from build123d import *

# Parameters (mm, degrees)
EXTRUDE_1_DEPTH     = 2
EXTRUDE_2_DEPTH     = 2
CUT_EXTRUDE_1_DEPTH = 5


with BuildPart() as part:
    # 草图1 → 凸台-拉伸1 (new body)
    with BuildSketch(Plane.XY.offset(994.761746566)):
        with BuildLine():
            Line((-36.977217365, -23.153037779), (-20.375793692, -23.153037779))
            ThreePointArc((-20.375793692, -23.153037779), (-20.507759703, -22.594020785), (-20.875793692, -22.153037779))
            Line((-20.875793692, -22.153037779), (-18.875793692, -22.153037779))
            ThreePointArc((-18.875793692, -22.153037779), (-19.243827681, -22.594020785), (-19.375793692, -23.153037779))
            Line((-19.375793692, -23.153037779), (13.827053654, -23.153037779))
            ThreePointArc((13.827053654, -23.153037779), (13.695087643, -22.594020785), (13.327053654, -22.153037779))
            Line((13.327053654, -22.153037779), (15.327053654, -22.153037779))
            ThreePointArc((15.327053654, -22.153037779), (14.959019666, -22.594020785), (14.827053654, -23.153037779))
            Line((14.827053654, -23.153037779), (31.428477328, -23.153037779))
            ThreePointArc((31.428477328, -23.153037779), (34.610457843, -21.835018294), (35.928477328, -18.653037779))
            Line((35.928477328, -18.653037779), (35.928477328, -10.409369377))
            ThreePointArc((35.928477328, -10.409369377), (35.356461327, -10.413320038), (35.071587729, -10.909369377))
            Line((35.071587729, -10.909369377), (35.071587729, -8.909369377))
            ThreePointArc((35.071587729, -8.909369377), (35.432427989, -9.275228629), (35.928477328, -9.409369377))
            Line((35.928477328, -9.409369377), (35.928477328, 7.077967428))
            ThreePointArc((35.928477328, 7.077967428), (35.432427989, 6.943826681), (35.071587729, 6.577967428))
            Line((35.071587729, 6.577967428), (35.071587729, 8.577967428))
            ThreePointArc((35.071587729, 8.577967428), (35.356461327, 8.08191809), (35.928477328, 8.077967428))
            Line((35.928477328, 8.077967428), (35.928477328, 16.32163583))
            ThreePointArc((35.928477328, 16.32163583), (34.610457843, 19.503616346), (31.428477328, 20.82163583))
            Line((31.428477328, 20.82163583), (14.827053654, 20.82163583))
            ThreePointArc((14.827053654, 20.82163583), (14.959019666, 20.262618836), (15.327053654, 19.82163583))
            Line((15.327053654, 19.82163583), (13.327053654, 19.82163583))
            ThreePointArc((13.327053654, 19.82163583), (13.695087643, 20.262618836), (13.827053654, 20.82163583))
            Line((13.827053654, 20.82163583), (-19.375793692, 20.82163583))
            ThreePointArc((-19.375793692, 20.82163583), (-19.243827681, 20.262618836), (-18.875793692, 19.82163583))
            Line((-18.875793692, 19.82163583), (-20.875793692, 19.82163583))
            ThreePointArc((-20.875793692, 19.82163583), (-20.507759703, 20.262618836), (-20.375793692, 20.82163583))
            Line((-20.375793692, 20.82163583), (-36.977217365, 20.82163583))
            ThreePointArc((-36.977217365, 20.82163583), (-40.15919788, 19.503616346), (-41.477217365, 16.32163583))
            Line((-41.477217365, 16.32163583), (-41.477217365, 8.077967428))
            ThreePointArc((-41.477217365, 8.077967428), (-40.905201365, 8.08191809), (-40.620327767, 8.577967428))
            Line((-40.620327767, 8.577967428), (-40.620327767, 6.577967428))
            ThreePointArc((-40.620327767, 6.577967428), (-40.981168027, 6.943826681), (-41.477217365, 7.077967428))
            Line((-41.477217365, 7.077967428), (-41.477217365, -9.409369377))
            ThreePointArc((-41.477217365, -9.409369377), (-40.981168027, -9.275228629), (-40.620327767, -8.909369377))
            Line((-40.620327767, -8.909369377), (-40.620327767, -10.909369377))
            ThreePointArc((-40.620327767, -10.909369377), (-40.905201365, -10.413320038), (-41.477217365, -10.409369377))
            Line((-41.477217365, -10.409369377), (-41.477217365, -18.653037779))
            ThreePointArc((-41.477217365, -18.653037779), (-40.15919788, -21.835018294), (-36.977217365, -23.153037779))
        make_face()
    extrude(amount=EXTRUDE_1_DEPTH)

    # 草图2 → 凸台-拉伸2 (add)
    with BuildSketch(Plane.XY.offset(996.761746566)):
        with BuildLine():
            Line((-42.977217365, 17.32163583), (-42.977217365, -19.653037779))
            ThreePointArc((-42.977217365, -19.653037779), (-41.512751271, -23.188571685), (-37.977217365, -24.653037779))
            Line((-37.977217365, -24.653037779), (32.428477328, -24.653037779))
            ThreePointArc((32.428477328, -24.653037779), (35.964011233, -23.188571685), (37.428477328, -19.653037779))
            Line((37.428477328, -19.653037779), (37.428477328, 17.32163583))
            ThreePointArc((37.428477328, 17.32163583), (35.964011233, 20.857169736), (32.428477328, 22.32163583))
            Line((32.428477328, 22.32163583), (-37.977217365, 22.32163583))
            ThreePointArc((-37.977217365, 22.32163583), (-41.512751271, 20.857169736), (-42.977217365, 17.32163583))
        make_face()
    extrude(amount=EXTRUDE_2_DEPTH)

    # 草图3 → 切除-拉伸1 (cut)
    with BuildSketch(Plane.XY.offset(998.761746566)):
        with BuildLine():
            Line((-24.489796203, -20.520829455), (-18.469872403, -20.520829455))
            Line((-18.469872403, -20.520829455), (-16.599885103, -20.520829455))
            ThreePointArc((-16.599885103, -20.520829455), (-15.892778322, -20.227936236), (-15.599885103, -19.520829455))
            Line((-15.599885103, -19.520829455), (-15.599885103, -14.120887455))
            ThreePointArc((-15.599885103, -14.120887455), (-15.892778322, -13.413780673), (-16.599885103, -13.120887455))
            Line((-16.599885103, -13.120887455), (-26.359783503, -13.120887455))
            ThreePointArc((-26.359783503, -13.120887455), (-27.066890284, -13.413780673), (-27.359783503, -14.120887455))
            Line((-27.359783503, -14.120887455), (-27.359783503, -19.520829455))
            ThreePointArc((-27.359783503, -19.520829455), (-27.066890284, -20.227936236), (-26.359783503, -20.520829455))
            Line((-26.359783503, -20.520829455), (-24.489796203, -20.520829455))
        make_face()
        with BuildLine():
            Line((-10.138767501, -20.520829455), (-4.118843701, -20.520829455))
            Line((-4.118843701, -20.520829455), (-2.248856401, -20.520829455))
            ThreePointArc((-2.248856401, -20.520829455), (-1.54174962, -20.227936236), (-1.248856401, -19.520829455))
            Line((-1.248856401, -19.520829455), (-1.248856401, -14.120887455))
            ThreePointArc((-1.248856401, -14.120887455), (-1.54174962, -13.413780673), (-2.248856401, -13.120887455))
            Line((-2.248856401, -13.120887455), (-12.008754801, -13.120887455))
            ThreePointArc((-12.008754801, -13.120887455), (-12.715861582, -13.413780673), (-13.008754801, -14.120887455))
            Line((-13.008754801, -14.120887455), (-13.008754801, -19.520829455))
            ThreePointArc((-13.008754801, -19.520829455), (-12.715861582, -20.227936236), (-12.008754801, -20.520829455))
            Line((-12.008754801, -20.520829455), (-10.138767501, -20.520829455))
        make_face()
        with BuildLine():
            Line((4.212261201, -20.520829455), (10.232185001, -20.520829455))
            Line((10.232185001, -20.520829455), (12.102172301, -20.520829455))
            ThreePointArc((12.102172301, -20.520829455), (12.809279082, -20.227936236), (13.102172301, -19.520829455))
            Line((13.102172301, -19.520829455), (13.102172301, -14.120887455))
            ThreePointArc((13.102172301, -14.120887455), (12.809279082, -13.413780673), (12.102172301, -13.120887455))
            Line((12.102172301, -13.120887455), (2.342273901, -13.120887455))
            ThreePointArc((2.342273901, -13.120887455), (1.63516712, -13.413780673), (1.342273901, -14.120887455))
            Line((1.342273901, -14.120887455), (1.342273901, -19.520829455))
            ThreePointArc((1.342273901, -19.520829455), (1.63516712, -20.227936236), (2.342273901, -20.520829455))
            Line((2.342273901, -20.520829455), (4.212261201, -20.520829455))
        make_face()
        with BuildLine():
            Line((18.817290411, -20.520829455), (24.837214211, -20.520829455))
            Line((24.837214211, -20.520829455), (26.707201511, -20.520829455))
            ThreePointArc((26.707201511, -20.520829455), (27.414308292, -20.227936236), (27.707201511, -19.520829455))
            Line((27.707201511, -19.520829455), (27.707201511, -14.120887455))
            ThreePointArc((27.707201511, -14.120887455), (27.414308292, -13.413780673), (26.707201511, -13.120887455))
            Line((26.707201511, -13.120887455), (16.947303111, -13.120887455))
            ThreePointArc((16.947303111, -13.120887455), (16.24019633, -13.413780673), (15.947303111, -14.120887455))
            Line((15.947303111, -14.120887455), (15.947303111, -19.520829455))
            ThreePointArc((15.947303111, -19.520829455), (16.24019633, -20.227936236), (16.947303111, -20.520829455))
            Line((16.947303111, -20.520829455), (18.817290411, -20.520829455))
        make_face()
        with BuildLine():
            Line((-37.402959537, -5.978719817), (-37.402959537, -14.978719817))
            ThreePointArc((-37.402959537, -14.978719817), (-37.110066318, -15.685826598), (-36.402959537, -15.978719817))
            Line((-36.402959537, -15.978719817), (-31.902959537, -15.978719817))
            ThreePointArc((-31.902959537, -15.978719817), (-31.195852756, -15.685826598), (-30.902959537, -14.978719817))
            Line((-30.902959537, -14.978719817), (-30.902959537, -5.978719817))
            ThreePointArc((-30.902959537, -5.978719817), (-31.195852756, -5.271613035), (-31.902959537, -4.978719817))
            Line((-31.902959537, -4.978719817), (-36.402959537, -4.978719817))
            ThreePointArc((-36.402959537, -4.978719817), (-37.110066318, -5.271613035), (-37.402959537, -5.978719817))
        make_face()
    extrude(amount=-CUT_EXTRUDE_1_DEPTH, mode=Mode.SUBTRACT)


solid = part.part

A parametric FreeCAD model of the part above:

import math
import FreeCAD as App
import Part
import Sketcher

V = App.Vector

doc = App.newDocument("Part")
body = doc.addObject("PartDesign::Body", "Body")

sketch1 = doc.addObject("Sketcher::SketchObject", "Sketch")
body.addObject(sketch1)
sketch1.AttachmentSupport = (doc.XY_Plane, [""])
sketch1.MapMode = "FlatFace"
sketch1.AttachmentOffset = App.Placement(V(0, 0, 994.761747), App.Rotation())
sketch1.addGeometry([
    Part.LineSegment(V(-37, -23.2, 0), V(-20.4, -23.2, 0)),
    Part.ArcOfCircle(Part.Circle(V(-21.6, -23.2, 0), V(0, 0, 1), 1.2), math.radians(0), math.radians(53)),
    Part.LineSegment(V(-20.9, -22.2, 0), V(-18.9, -22.2, 0)),
    Part.ArcOfCircle(Part.Circle(V(-18.1, -23.2, 0), V(0, 0, 1), 1.2), math.radians(127), math.radians(180)),
    Part.LineSegment(V(-19.4, -23.2, 0), V(13.8, -23.2, 0)),
    Part.ArcOfCircle(Part.Circle(V(12.6, -23.2, 0), V(0, 0, 1), 1.2), math.radians(0), math.radians(53)),
    Part.LineSegment(V(13.3, -22.2, 0), V(15.3, -22.2, 0)),
    Part.ArcOfCircle(Part.Circle(V(16.1, -23.2, 0), V(0, 0, 1), 1.3), math.radians(127), math.radians(180)),
    Part.LineSegment(V(14.8, -23.2, 0), V(31.4, -23.2, 0)),
    Part.ArcOfCircle(Part.Circle(V(31.4, -18.7, 0), V(0, 0, 1), 4.5), math.radians(-90), math.radians(0)),
    Part.LineSegment(V(35.9, -18.7, 0), V(35.9, -10.4, 0)),
    Part.ArcOfCircle(Part.Circle(V(35.6, -10.9, 0), V(0, 0, 1), 0.6), math.radians(61), math.radians(180)),
    Part.LineSegment(V(35.1, -10.9, 0), V(35.1, -8.9, 0)),
    Part.ArcOfCircle(Part.Circle(V(35.9, -8.4, 0), V(0, 0, 1), 1), math.radians(-151), math.radians(-90)),
    Part.LineSegment(V(35.9, -9.4, 0), V(35.9, 7.1, 0)),
    Part.ArcOfCircle(Part.Circle(V(35.9, 6.1, 0), V(0, 0, 1), 1), math.radians(90), math.radians(151)),
    Part.LineSegment(V(35.1, 6.6, 0), V(35.1, 8.6, 0)),
    Part.ArcOfCircle(Part.Circle(V(35.6, 8.6, 0), V(0, 0, 1), 0.6), math.radians(-180), math.radians(-61)),
    Part.LineSegment(V(35.9, 8.1, 0), V(35.9, 16.3, 0)),
    Part.ArcOfCircle(Part.Circle(V(31.4, 16.3, 0), V(0, 0, 1), 4.5), math.radians(0), math.radians(90)),
    Part.LineSegment(V(31.4, 20.8, 0), V(14.8, 20.8, 0)),
    Part.ArcOfCircle(Part.Circle(V(16.1, 20.8, 0), V(0, 0, 1), 1.3), math.radians(-180), math.radians(-127)),
    Part.LineSegment(V(15.3, 19.8, 0), V(13.3, 19.8, 0)),
    Part.ArcOfCircle(Part.Circle(V(12.6, 20.8, 0), V(0, 0, 1), 1.2), math.radians(-53), math.radians(0)),
    Part.LineSegment(V(13.8, 20.8, 0), V(-19.4, 20.8, 0)),
    Part.ArcOfCircle(Part.Circle(V(-18.1, 20.8, 0), V(0, 0, 1), 1.2), math.radians(180), math.radians(233)),
    Part.LineSegment(V(-18.9, 19.8, 0), V(-20.9, 19.8, 0)),
    Part.ArcOfCircle(Part.Circle(V(-21.6, 20.8, 0), V(0, 0, 1), 1.2), math.radians(-53), math.radians(0)),
    Part.LineSegment(V(-20.4, 20.8, 0), V(-37, 20.8, 0)),
    Part.ArcOfCircle(Part.Circle(V(-37, 16.3, 0), V(0, 0, 1), 4.5), math.radians(90), math.radians(180)),
    Part.LineSegment(V(-41.5, 16.3, 0), V(-41.5, 8.1, 0)),
    Part.ArcOfCircle(Part.Circle(V(-41.2, 8.6, 0), V(0, 0, 1), 0.6), math.radians(-119), math.radians(0)),
    Part.LineSegment(V(-40.6, 8.6, 0), V(-40.6, 6.6, 0)),
    Part.ArcOfCircle(Part.Circle(V(-41.5, 6.1, 0), V(0, 0, 1), 1), math.radians(29), math.radians(90)),
    Part.LineSegment(V(-41.5, 7.1, 0), V(-41.5, -9.4, 0)),
    Part.ArcOfCircle(Part.Circle(V(-41.5, -8.4, 0), V(0, 0, 1), 1), math.radians(-90), math.radians(-29)),
    Part.LineSegment(V(-40.6, -8.9, 0), V(-40.6, -10.9, 0)),
    Part.ArcOfCircle(Part.Circle(V(-41.2, -10.9, 0), V(0, 0, 1), 0.6), math.radians(0), math.radians(119)),
    Part.LineSegment(V(-41.5, -10.4, 0), V(-41.5, -18.7, 0)),
    Part.ArcOfCircle(Part.Circle(V(-37, -18.7, 0), V(0, 0, 1), 4.5), math.radians(-180), math.radians(-90)),
], False)
sketch1.addConstraint([
    Sketcher.Constraint("Coincident", 0, 2, 1, 1),
    Sketcher.Constraint("Coincident", 1, 2, 2, 1),
    Sketcher.Constraint("Coincident", 2, 2, 3, 1),
    Sketcher.Constraint("Coincident", 3, 2, 4, 1),
    Sketcher.Constraint("Coincident", 4, 2, 5, 1),
    Sketcher.Constraint("Coincident", 5, 2, 6, 1),
    Sketcher.Constraint("Coincident", 6, 2, 7, 1),
    Sketcher.Constraint("Coincident", 7, 2, 8, 1),
    Sketcher.Constraint("Tangent", 8, 2, 9, 1),
    Sketcher.Constraint("Tangent", 9, 2, 10, 1),
    Sketcher.Constraint("Coincident", 10, 2, 11, 1),
    Sketcher.Constraint("Tangent", 11, 2, 12, 1),
    Sketcher.Constraint("Coincident", 12, 2, 13, 1),
    Sketcher.Constraint("Coincident", 13, 2, 14, 1),
    Sketcher.Constraint("Coincident", 14, 2, 15, 1),
    Sketcher.Constraint("Coincident", 15, 2, 16, 1),
    Sketcher.Constraint("Tangent", 16, 2, 17, 1),
    Sketcher.Constraint("Coincident", 17, 2, 18, 1),
    Sketcher.Constraint("Tangent", 18, 2, 19, 1),
    Sketcher.Constraint("Tangent", 19, 2, 20, 1),
    Sketcher.Constraint("Coincident", 20, 2, 21, 1),
    Sketcher.Constraint("Coincident", 21, 2, 22, 1),
    Sketcher.Constraint("Coincident", 22, 2, 23, 1),
    Sketcher.Constraint("Coincident", 23, 2, 24, 1),
    Sketcher.Constraint("Coincident", 24, 2, 25, 1),
    Sketcher.Constraint("Coincident", 25, 2, 26, 1),
    Sketcher.Constraint("Coincident", 26, 2, 27, 1),
    Sketcher.Constraint("Coincident", 27, 2, 28, 1),
    Sketcher.Constraint("Tangent", 28, 2, 29, 1),
    Sketcher.Constraint("Tangent", 29, 2, 30, 1),
    Sketcher.Constraint("Coincident", 30, 2, 31, 1),
    Sketcher.Constraint("Tangent", 31, 2, 32, 1),
    Sketcher.Constraint("Coincident", 32, 2, 33, 1),
    Sketcher.Constraint("Coincident", 33, 2, 34, 1),
    Sketcher.Constraint("Coincident", 34, 2, 35, 1),
    Sketcher.Constraint("Coincident", 35, 2, 36, 1),
    Sketcher.Constraint("Tangent", 36, 2, 37, 1),
    Sketcher.Constraint("Coincident", 37, 2, 38, 1),
    Sketcher.Constraint("Tangent", 38, 2, 39, 1),
    Sketcher.Constraint("Tangent", 39, 2, 0, 1),
    Sketcher.Constraint("Horizontal", 0),
    Sketcher.Constraint("Horizontal", 2),
    Sketcher.Constraint("Horizontal", 4),
    Sketcher.Constraint("Horizontal", 6),
    Sketcher.Constraint("Horizontal", 8),
    Sketcher.Constraint("Vertical", 10),
    Sketcher.Constraint("Vertical", 12),
    Sketcher.Constraint("Vertical", 14),
    Sketcher.Constraint("Vertical", 16),
    Sketcher.Constraint("Vertical", 18),
    Sketcher.Constraint("Horizontal", 20),
    Sketcher.Constraint("Horizontal", 22),
    Sketcher.Constraint("Horizontal", 24),
    Sketcher.Constraint("Horizontal", 26),
    Sketcher.Constraint("Horizontal", 28),
    Sketcher.Constraint("Vertical", 30),
    Sketcher.Constraint("Vertical", 32),
    Sketcher.Constraint("Vertical", 34),
    Sketcher.Constraint("Vertical", 36),
    Sketcher.Constraint("Vertical", 38),
    Sketcher.Constraint("Equal", 1, 3),
    Sketcher.Constraint("Equal", 3, 5),
    Sketcher.Constraint("Equal", 5, 7),
    Sketcher.Constraint("Equal", 13, 15),
    Sketcher.Constraint("Equal", 11, 17),
    Sketcher.Constraint("Equal", 9, 19),
    Sketcher.Constraint("Equal", 7, 21),
    Sketcher.Constraint("Equal", 21, 23),
    Sketcher.Constraint("Equal", 23, 25),
    Sketcher.Constraint("Equal", 25, 27),
    Sketcher.Constraint("Equal", 19, 29),
    Sketcher.Constraint("Equal", 17, 31),
    Sketcher.Constraint("Equal", 15, 33),
    Sketcher.Constraint("Equal", 33, 35),
    Sketcher.Constraint("Equal", 31, 37),
    Sketcher.Constraint("Equal", 29, 39),
    Sketcher.Constraint("Horizontal", 1, 3, 3, 3),
    Sketcher.Constraint("Horizontal", 3, 3, 5, 3),
    Sketcher.Constraint("Horizontal", 5, 3, 7, 3),
    Sketcher.Constraint("Horizontal", 21, 3, 23, 3),
    Sketcher.Constraint("Horizontal", 23, 3, 25, 3),
    Sketcher.Constraint("Horizontal", 25, 3, 27, 3),
    Sketcher.Constraint("Horizontal", 19, 3, 29, 3),
    Sketcher.Constraint("Horizontal", 17, 3, 31, 3),
    Sketcher.Constraint("Horizontal", 15, 3, 33, 3),
    Sketcher.Constraint("Horizontal", 13, 3, 35, 3),
    Sketcher.Constraint("Horizontal", 11, 3, 37, 3),
    Sketcher.Constraint("Horizontal", 9, 3, 39, 3),
    Sketcher.Constraint("Horizontal", 7, 3, 0, 2),
    Sketcher.Constraint("Horizontal", 0, 2, 3, 2),
    Sketcher.Constraint("Horizontal", 2, 2, 5, 2),
    Sketcher.Constraint("Horizontal", 27, 3, 19, 2),
    Sketcher.Constraint("Horizontal", 20, 2, 23, 2),
    Sketcher.Constraint("Horizontal", 22, 2, 25, 2),
    Sketcher.Constraint("Horizontal", 17, 2, 30, 2),
    Sketcher.Constraint("Horizontal", 15, 2, 32, 2),
    Sketcher.Constraint("Horizontal", 12, 2, 35, 2),
    Sketcher.Constraint("Horizontal", 10, 2, 37, 2),
    Sketcher.Constraint("Vertical", 13, 3, 15, 3),
    Sketcher.Constraint("Vertical", 11, 3, 17, 3),
    Sketcher.Constraint("Vertical", 9, 3, 19, 3),
    Sketcher.Constraint("Vertical", 7, 3, 21, 3),
    Sketcher.Constraint("Vertical", 5, 3, 23, 3),
    Sketcher.Constraint("Vertical", 3, 3, 25, 3),
    Sketcher.Constraint("Vertical", 1, 3, 27, 3),
    Sketcher.Constraint("Vertical", 33, 3, 35, 3),
    Sketcher.Constraint("Vertical", 15, 3, 9, 2),
    Sketcher.Constraint("Vertical", 10, 2, 13, 2),
    Sketcher.Constraint("Vertical", 6, 2, 21, 2),
    Sketcher.Constraint("Vertical", 30, 2, 33, 2),
    Sketcher.Constraint("Equal", 2, 6),
    Sketcher.Constraint("Equal", 0, 8),
    Sketcher.Constraint("Equal", 26, 12),
    Sketcher.Constraint("Equal", 12, 16),
    Sketcher.Constraint("Equal", 10, 18),
    Sketcher.Constraint("Radius", 9, 4.5),
    Sketcher.Constraint("DistanceX", 2, 1, 2, 2, 2.0),
    Sketcher.Constraint("Radius", 1, 1.25),
    Sketcher.Constraint("DistanceY", 0, 2, 1, 2, 1.0),
    Sketcher.Constraint("DistanceY", 10, 2, 13, 2, 1.0),
    Sketcher.Constraint("DistanceY", 11, 3, 10, 2, 0.5),
    Sketcher.Constraint("Radius", 11, 0.574321),
    Sketcher.Constraint("DistanceY", 10, 1, 10, 2, 8.243668),
    Sketcher.Constraint("DistanceX", 0, 1, 0, 2, 16.601424),
    Sketcher.Constraint("DistanceX", 4, 1, 4, 2, 33.202847),
    Sketcher.Constraint("DistanceY", 14, 1, 14, 2, 16.487337),
    Sketcher.Constraint("DistanceX", -1, 1, 11, 3, 35.645909),
    Sketcher.Constraint("DistanceY", 11, 3, -1, 1, 10.909369),
])
pad1 = doc.addObject("PartDesign::Pad", "Pad")
body.addObject(pad1)
pad1.Profile = sketch1
pad1.Length = 2

sketch2 = doc.addObject("Sketcher::SketchObject", "Sketch001")
body.addObject(sketch2)
sketch2.AttachmentSupport = (doc.XY_Plane, [""])
sketch2.MapMode = "FlatFace"
sketch2.AttachmentOffset = App.Placement(V(0, 0, 996.761747), App.Rotation())
sketch2.addGeometry([
    Part.LineSegment(V(-43, 17, 0), V(-43, -20, 0)),
    Part.ArcOfCircle(Part.Circle(V(-38, -20, 0), V(0, 0, 1), 5), math.radians(180), math.radians(270)),
    Part.LineSegment(V(-38, -25, 0), V(32, -25, 0)),
    Part.ArcOfCircle(Part.Circle(V(32, -20, 0), V(0, 0, 1), 5), math.radians(-90), math.radians(0)),
    Part.LineSegment(V(37, -20, 0), V(37, 17, 0)),
    Part.ArcOfCircle(Part.Circle(V(32, 17, 0), V(0, 0, 1), 5), math.radians(0), math.radians(90)),
    Part.LineSegment(V(32, 22, 0), V(-38, 22, 0)),
    Part.ArcOfCircle(Part.Circle(V(-38, 17, 0), V(0, 0, 1), 5), math.radians(90), math.radians(180)),
], False)
sketch2.addConstraint([
    Sketcher.Constraint("Tangent", 0, 2, 1, 1),
    Sketcher.Constraint("Tangent", 1, 2, 2, 1),
    Sketcher.Constraint("Tangent", 2, 2, 3, 1),
    Sketcher.Constraint("Tangent", 3, 2, 4, 1),
    Sketcher.Constraint("Tangent", 4, 2, 5, 1),
    Sketcher.Constraint("Tangent", 5, 2, 6, 1),
    Sketcher.Constraint("Tangent", 6, 2, 7, 1),
    Sketcher.Constraint("Tangent", 7, 2, 0, 1),
    Sketcher.Constraint("Vertical", 0),
    Sketcher.Constraint("Horizontal", 2),
    Sketcher.Constraint("Vertical", 4),
    Sketcher.Constraint("Horizontal", 6),
    Sketcher.Constraint("Equal", 1, 3),
    Sketcher.Constraint("Equal", 3, 5),
    Sketcher.Constraint("Equal", 5, 7),
    Sketcher.Constraint("Radius", 1, 5.0),
    Sketcher.Constraint("DistanceX", 2, 1, 2, 2, 70.405695),
    Sketcher.Constraint("DistanceY", 0, 2, 0, 1, 36.974674),
    Sketcher.Constraint("DistanceX", 1, 3, -1, 1, 37.977217),
    Sketcher.Constraint("DistanceY", 1, 3, -1, 1, 19.653038),
])
pad2 = doc.addObject("PartDesign::Pad", "Pad001")
body.addObject(pad2)
pad2.Profile = sketch2
pad2.Length = 2

sketch3 = doc.addObject("Sketcher::SketchObject", "Sketch002")
body.addObject(sketch3)
sketch3.AttachmentSupport = (doc.XY_Plane, [""])
sketch3.MapMode = "FlatFace"
sketch3.AttachmentOffset = App.Placement(V(0, 0, 998.761747), App.Rotation())
sketch3.addGeometry([
    Part.ArcOfCircle(Part.Circle(V(-16.6, -19.5, 0), V(0, 0, 1), 1), math.radians(-90), math.radians(0)),
    Part.LineSegment(V(-15.6, -19.5, 0), V(-15.6, -14.1, 0)),
    Part.ArcOfCircle(Part.Circle(V(-16.6, -14.1, 0), V(0, 0, 1), 1), math.radians(0), math.radians(90)),
    Part.LineSegment(V(-16.6, -13.1, 0), V(-26.4, -13.1, 0)),
    Part.ArcOfCircle(Part.Circle(V(-26.4, -14.1, 0), V(0, 0, 1), 1), math.radians(90), math.radians(180)),
    Part.LineSegment(V(-27.4, -14.1, 0), V(-27.4, -19.5, 0)),
    Part.ArcOfCircle(Part.Circle(V(-26.4, -19.5, 0), V(0, 0, 1), 1), math.radians(-180), math.radians(-90)),
    Part.LineSegment(V(-26.4, -20.5, 0), V(-16.6, -20.5, 0)),
    Part.ArcOfCircle(Part.Circle(V(-2.2, -19.5, 0), V(0, 0, 1), 1), math.radians(-90), math.radians(0)),
    Part.LineSegment(V(-1.2, -19.5, 0), V(-1.2, -14.1, 0)),
    Part.ArcOfCircle(Part.Circle(V(-2.2, -14.1, 0), V(0, 0, 1), 1), math.radians(0), math.radians(90)),
    Part.LineSegment(V(-2.2, -13.1, 0), V(-12, -13.1, 0)),
    Part.ArcOfCircle(Part.Circle(V(-12, -14.1, 0), V(0, 0, 1), 1), math.radians(90), math.radians(180)),
    Part.LineSegment(V(-13, -14.1, 0), V(-13, -19.5, 0)),
    Part.ArcOfCircle(Part.Circle(V(-12, -19.5, 0), V(0, 0, 1), 1), math.radians(-180), math.radians(-90)),
    Part.LineSegment(V(-12, -20.5, 0), V(-2.2, -20.5, 0)),
    Part.ArcOfCircle(Part.Circle(V(12.1, -19.5, 0), V(0, 0, 1), 1), math.radians(-90), math.radians(0)),
    Part.LineSegment(V(13.1, -19.5, 0), V(13.1, -14.1, 0)),
    Part.ArcOfCircle(Part.Circle(V(12.1, -14.1, 0), V(0, 0, 1), 1), math.radians(0), math.radians(90)),
    Part.LineSegment(V(12.1, -13.1, 0), V(2.3, -13.1, 0)),
    Part.ArcOfCircle(Part.Circle(V(2.3, -14.1, 0), V(0, 0, 1), 1), math.radians(90), math.radians(180)),
    Part.LineSegment(V(1.3, -14.1, 0), V(1.3, -19.5, 0)),
    Part.ArcOfCircle(Part.Circle(V(2.3, -19.5, 0), V(0, 0, 1), 1), math.radians(-180), math.radians(-90)),
    Part.LineSegment(V(2.3, -20.5, 0), V(12.1, -20.5, 0)),
    Part.ArcOfCircle(Part.Circle(V(26.7, -19.5, 0), V(0, 0, 1), 1), math.radians(-90), math.radians(0)),
    Part.LineSegment(V(27.7, -19.5, 0), V(27.7, -14.1, 0)),
    Part.ArcOfCircle(Part.Circle(V(26.7, -14.1, 0), V(0, 0, 1), 1), math.radians(0), math.radians(90)),
    Part.LineSegment(V(26.7, -13.1, 0), V(16.9, -13.1, 0)),
    Part.ArcOfCircle(Part.Circle(V(16.9, -14.1, 0), V(0, 0, 1), 1), math.radians(90), math.radians(180)),
    Part.LineSegment(V(15.9, -14.1, 0), V(15.9, -19.5, 0)),
    Part.ArcOfCircle(Part.Circle(V(16.9, -19.5, 0), V(0, 0, 1), 1), math.radians(-180), math.radians(-90)),
    Part.LineSegment(V(16.9, -20.5, 0), V(26.7, -20.5, 0)),
    Part.LineSegment(V(-37.4, -6, 0), V(-37.4, -15, 0)),
    Part.ArcOfCircle(Part.Circle(V(-36.4, -15, 0), V(0, 0, 1), 1), math.radians(-180), math.radians(-90)),
    Part.LineSegment(V(-36.4, -16, 0), V(-31.9, -16, 0)),
    Part.ArcOfCircle(Part.Circle(V(-31.9, -15, 0), V(0, 0, 1), 1), math.radians(-90), math.radians(0)),
    Part.LineSegment(V(-30.9, -15, 0), V(-30.9, -6, 0)),
    Part.ArcOfCircle(Part.Circle(V(-31.9, -6, 0), V(0, 0, 1), 1), math.radians(0), math.radians(90)),
    Part.LineSegment(V(-31.9, -5, 0), V(-36.4, -5, 0)),
    Part.ArcOfCircle(Part.Circle(V(-36.4, -6, 0), V(0, 0, 1), 1), math.radians(90), math.radians(180)),
], False)
sketch3.addConstraint([
    Sketcher.Constraint("Tangent", 0, 2, 1, 1),
    Sketcher.Constraint("Tangent", 1, 2, 2, 1),
    Sketcher.Constraint("Tangent", 2, 2, 3, 1),
    Sketcher.Constraint("Tangent", 3, 2, 4, 1),
    Sketcher.Constraint("Tangent", 4, 2, 5, 1),
    Sketcher.Constraint("Tangent", 5, 2, 6, 1),
    Sketcher.Constraint("Tangent", 6, 2, 7, 1),
    Sketcher.Constraint("Tangent", 7, 2, 0, 1),
    Sketcher.Constraint("Tangent", 8, 2, 9, 1),
    Sketcher.Constraint("Tangent", 9, 2, 10, 1),
    Sketcher.Constraint("Tangent", 10, 2, 11, 1),
    Sketcher.Constraint("Tangent", 11, 2, 12, 1),
    Sketcher.Constraint("Tangent", 12, 2, 13, 1),
    Sketcher.Constraint("Tangent", 13, 2, 14, 1),
    Sketcher.Constraint("Tangent", 14, 2, 15, 1),
    Sketcher.Constraint("Tangent", 15, 2, 8, 1),
    Sketcher.Constraint("Tangent", 16, 2, 17, 1),
    Sketcher.Constraint("Tangent", 17, 2, 18, 1),
    Sketcher.Constraint("Tangent", 18, 2, 19, 1),
    Sketcher.Constraint("Tangent", 19, 2, 20, 1),
    Sketcher.Constraint("Tangent", 20, 2, 21, 1),
    Sketcher.Constraint("Tangent", 21, 2, 22, 1),
    Sketcher.Constraint("Tangent", 22, 2, 23, 1),
    Sketcher.Constraint("Tangent", 23, 2, 16, 1),
    Sketcher.Constraint("Tangent", 24, 2, 25, 1),
    Sketcher.Constraint("Tangent", 25, 2, 26, 1),
    Sketcher.Constraint("Tangent", 26, 2, 27, 1),
    Sketcher.Constraint("Tangent", 27, 2, 28, 1),
    Sketcher.Constraint("Tangent", 28, 2, 29, 1),
    Sketcher.Constraint("Tangent", 29, 2, 30, 1),
    Sketcher.Constraint("Tangent", 30, 2, 31, 1),
    Sketcher.Constraint("Tangent", 31, 2, 24, 1),
    Sketcher.Constraint("Tangent", 32, 2, 33, 1),
    Sketcher.Constraint("Tangent", 33, 2, 34, 1),
    Sketcher.Constraint("Tangent", 34, 2, 35, 1),
    Sketcher.Constraint("Tangent", 35, 2, 36, 1),
    Sketcher.Constraint("Tangent", 36, 2, 37, 1),
    Sketcher.Constraint("Tangent", 37, 2, 38, 1),
    Sketcher.Constraint("Tangent", 38, 2, 39, 1),
    Sketcher.Constraint("Tangent", 39, 2, 32, 1),
    Sketcher.Constraint("Vertical", 1),
    Sketcher.Constraint("Horizontal", 3),
    Sketcher.Constraint("Vertical", 5),
    Sketcher.Constraint("Horizontal", 7),
    Sketcher.Constraint("Vertical", 9),
    Sketcher.Constraint("Horizontal", 11),
    Sketcher.Constraint("Vertical", 13),
    Sketcher.Constraint("Horizontal", 15),
    Sketcher.Constraint("Vertical", 17),
    Sketcher.Constraint("Horizontal", 19),
    Sketcher.Constraint("Vertical", 21),
    Sketcher.Constraint("Horizontal", 23),
    Sketcher.Constraint("Vertical", 25),
    Sketcher.Constraint("Horizontal", 27),
    Sketcher.Constraint("Vertical", 29),
    Sketcher.Constraint("Horizontal", 31),
    Sketcher.Constraint("Vertical", 32),
    Sketcher.Constraint("Horizontal", 34),
    Sketcher.Constraint("Vertical", 36),
    Sketcher.Constraint("Horizontal", 38),
    Sketcher.Constraint("Equal", 0, 2),
    Sketcher.Constraint("Equal", 2, 4),
    Sketcher.Constraint("Equal", 4, 6),
    Sketcher.Constraint("Equal", 6, 8),
    Sketcher.Constraint("Equal", 8, 10),
    Sketcher.Constraint("Equal", 10, 12),
    Sketcher.Constraint("Equal", 12, 14),
    Sketcher.Constraint("Equal", 14, 16),
    Sketcher.Constraint("Equal", 16, 18),
    Sketcher.Constraint("Equal", 18, 20),
    Sketcher.Constraint("Equal", 20, 22),
    Sketcher.Constraint("Equal", 22, 24),
    Sketcher.Constraint("Equal", 24, 26),
    Sketcher.Constraint("Equal", 26, 28),
    Sketcher.Constraint("Equal", 28, 30),
    Sketcher.Constraint("Equal", 30, 33),
    Sketcher.Constraint("Equal", 33, 35),
    Sketcher.Constraint("Equal", 35, 37),
    Sketcher.Constraint("Equal", 37, 39),
    Sketcher.Constraint("Horizontal", 6, 3, 8, 3),
    Sketcher.Constraint("Horizontal", 4, 3, 10, 3),
    Sketcher.Constraint("Horizontal", 14, 3, 16, 3),
    Sketcher.Constraint("Horizontal", 12, 3, 18, 3),
    Sketcher.Constraint("Horizontal", 22, 3, 24, 3),
    Sketcher.Constraint("Horizontal", 20, 3, 26, 3),
    Sketcher.Constraint("Equal", 7, 11),
    Sketcher.Constraint("Equal", 15, 19),
    Sketcher.Constraint("Equal", 23, 27),
    Sketcher.Constraint("Radius", 0, 1.0),
    Sketcher.Constraint("DistanceY", 32, 2, 32, 1, 9.0),
    Sketcher.Constraint("DistanceX", 34, 1, 34, 2, 4.5),
    Sketcher.Constraint("DistanceX", 3, 2, 3, 1, 9.759898),
    Sketcher.Constraint("DistanceX", -1, 1, 24, 3, 26.707202),
    Sketcher.Constraint("DistanceY", 1, 1, 1, 2, 5.399942),
    Sketcher.Constraint("DistanceY", 0, 3, -1, 1, 19.520829),
    Sketcher.Constraint("DistanceX", 33, 3, -1, 1, 36.40296),
    Sketcher.Constraint("DistanceY", 33, 3, -1, 1, 14.97872),
    Sketcher.Constraint("DistanceX", 0, 3, 8, 3, 14.351029),
    Sketcher.Constraint("DistanceX", 8, 3, 16, 3, 14.351029),
    Sketcher.Constraint("DistanceX", 16, 3, 24, 3, 14.605029),
])
pocket1 = doc.addObject("PartDesign::Pocket", "Pocket")
body.addObject(pocket1)
pocket1.Profile = sketch3
pocket1.Length = 5

doc.recompute()
